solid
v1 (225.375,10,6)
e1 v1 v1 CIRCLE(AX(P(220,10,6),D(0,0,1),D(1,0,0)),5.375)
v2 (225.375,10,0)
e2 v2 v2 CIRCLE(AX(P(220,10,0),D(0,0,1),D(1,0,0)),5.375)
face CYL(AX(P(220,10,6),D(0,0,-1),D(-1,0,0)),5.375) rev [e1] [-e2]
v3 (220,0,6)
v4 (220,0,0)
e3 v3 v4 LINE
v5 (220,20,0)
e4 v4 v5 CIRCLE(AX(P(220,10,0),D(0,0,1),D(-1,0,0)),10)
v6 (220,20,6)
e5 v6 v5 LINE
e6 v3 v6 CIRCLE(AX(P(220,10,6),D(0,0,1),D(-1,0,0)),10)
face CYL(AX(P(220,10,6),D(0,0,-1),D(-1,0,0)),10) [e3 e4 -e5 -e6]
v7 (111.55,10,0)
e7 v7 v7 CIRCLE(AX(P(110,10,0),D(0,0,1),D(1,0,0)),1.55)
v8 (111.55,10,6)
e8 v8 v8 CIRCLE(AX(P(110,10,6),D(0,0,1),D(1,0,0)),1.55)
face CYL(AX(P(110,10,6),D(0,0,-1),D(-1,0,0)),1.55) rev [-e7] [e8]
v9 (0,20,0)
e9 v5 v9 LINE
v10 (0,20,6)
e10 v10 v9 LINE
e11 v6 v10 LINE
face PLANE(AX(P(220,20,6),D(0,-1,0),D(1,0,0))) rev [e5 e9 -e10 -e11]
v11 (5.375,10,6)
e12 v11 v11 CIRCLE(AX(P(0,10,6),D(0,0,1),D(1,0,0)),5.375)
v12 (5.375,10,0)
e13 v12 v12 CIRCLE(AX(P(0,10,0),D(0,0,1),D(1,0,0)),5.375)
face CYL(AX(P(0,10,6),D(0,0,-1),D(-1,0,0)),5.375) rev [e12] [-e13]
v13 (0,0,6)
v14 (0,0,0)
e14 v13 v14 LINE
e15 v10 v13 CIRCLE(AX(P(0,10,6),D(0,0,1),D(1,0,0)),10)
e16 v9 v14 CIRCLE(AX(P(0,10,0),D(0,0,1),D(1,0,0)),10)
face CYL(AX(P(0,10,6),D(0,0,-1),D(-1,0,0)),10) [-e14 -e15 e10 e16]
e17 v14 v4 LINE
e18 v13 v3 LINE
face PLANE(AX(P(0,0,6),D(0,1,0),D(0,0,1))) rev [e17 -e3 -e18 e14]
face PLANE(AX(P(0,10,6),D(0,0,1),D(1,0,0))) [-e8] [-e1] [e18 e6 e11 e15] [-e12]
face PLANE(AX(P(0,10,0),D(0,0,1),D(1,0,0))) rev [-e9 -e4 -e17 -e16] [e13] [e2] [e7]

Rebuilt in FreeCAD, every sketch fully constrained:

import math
import FreeCAD as App
import Part
import Sketcher
from FreeCAD import Vector
Q = App.Units.Quantity

doc = App.newDocument("Part")
params = doc.addObject("Spreadsheet::Sheet", "Params")
for row, (alias, value) in enumerate([
    ("sketch1_radius", "10 mm"),
    ("sketch1_diameter", "3.1 mm"),
    ("sketch1_diameter2", "10.75 mm"),
    ("sketch1_width", "220 mm"),
    ("pad1_length", "6 mm"),
], start=1):
    params.set(f"A{row}", alias)
    params.set(f"B{row}", "=" + value)
    params.setAlias(f"B{row}", alias)

body = doc.addObject("PartDesign::Body", "Body")

# Sketch on XY plane
sketch1 = body.newObject("Sketcher::SketchObject", "Sketch")
sketch1.AttachmentSupport = (doc.getObject("XY_Plane"), [""])
sketch1.MapMode = "FlatFace"
sketch1.addGeometry([
    Part.LineSegment(Vector(0, 0, 0), Vector(220, 0, 0)),  # 0
    Part.ArcOfCircle(Part.Circle(Vector(220, 10, 0), Vector(0, 0, 1), 10), math.radians(-90), math.radians(90)),  # 1
    Part.LineSegment(Vector(220, 20, 0), Vector(0, 20, 0)),  # 2
    Part.ArcOfCircle(Part.Circle(Vector(0, 10, 0), Vector(0, 0, 1), 10), math.radians(90), math.radians(270)),  # 3
    Part.Circle(Vector(0, 10, 0), Vector(0, 0, 1), 5.4),  # 4
    Part.Circle(Vector(110, 10, 0), Vector(0, 0, 1), 1.6),  # 5
    Part.Circle(Vector(220, 10, 0), Vector(0, 0, 1), 5.4),  # 6
], False)
sketch1.addConstraint([
    Sketcher.Constraint("Tangent", 0, 2, 1, 1),
    Sketcher.Constraint("Tangent", 1, 2, 2, 1),
    Sketcher.Constraint("Tangent", 2, 2, 3, 1),
    Sketcher.Constraint("Tangent", 3, 2, 0, 1),
    Sketcher.Constraint("Horizontal", 0),
    Sketcher.Constraint("Horizontal", 2),
    Sketcher.Constraint("Coincident", 3, 2, -1, 1),
    Sketcher.Constraint("Coincident", 4, 3, 3, 3),
    Sketcher.Constraint("Coincident", 6, 3, 1, 3),
    Sketcher.Constraint("Equal", 4, 6),
    Sketcher.Constraint("Horizontal", 4, 3, 5, 3),
    Sketcher.Constraint("Radius", 1, Q("10 mm")),
    Sketcher.Constraint("Diameter", 5, Q("3.1 mm")),
    Sketcher.Constraint("Diameter", 4, Q("10.75 mm")),
    Sketcher.Constraint("DistanceX", 0, 1, 0, 2, Q("220 mm")),
    Sketcher.Constraint("DistanceX", -1, 1, 5, 3, Q("110 mm")),
])
sketch1.setExpression("Constraints[11]", "Params.sketch1_radius")
sketch1.setExpression("Constraints[12]", "Params.sketch1_diameter")
sketch1.setExpression("Constraints[13]", "Params.sketch1_diameter2")
sketch1.setExpression("Constraints[14]", "Params.sketch1_width")
pad1 = body.newObject("PartDesign::Pad", "Pad")
pad1.Profile = sketch1
pad1.setExpression("Length", "Params.pad1_length")

doc.recompute()
